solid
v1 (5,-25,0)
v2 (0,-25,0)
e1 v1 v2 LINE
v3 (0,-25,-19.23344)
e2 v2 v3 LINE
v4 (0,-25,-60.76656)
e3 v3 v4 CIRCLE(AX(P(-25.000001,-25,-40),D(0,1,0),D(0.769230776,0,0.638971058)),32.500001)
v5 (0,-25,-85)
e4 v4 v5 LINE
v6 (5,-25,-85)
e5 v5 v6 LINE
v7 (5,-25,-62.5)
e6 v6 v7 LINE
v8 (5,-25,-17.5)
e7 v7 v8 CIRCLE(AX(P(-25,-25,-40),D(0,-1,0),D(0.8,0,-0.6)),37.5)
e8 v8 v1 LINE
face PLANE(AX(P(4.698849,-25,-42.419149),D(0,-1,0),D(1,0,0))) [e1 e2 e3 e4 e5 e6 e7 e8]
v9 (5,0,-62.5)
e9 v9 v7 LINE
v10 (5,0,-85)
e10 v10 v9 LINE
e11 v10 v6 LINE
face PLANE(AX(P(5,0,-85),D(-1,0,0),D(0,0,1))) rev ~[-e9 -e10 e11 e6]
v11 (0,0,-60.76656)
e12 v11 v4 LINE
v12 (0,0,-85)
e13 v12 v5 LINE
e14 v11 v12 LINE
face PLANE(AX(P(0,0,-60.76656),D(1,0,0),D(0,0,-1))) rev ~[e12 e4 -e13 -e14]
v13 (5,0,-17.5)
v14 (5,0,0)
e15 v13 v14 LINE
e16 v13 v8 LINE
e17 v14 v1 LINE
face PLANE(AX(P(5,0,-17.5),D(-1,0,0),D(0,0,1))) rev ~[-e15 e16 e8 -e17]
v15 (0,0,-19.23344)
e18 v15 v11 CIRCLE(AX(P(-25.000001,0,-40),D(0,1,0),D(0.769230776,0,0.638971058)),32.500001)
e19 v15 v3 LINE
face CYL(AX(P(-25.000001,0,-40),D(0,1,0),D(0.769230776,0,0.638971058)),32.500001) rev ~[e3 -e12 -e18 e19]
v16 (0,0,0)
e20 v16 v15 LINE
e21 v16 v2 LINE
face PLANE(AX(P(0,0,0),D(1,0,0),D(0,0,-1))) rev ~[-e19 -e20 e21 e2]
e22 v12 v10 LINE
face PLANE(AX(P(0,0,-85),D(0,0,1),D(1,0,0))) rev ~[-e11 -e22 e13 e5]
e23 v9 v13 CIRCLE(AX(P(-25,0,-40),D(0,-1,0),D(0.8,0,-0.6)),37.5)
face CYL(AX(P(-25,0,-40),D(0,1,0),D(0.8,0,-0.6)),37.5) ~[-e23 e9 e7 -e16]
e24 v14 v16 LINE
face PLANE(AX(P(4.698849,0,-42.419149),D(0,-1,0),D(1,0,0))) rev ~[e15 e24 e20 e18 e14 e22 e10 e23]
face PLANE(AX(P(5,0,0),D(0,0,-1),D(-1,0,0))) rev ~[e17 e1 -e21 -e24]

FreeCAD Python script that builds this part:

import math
import FreeCAD as App
import Part
import Sketcher

V = App.Vector
Q = App.Units.Quantity

doc = App.newDocument("Part")
body = doc.addObject("PartDesign::Body", "Body")

sketch1 = doc.addObject("Sketcher::SketchObject", "Sketch")
body.addObject(sketch1)
sketch1.AttachmentSupport = (doc.XZ_Plane, [""])
sketch1.MapMode = "FlatFace"
sketch1.addGeometry(Part.LineSegment(V(5, 0, 0), V(0, 0, 0)), False)
sketch1.addGeometry(Part.LineSegment(V(0, 0, 0), V(0, -19.23344, 0)), False)
sketch1.addGeometry(Part.ArcOfCircle(Part.Circle(V(-25.000001, -40, 0), V(0, 0, 1), 32.500001), math.radians(-39.715137), math.radians(39.715137)), False)
sketch1.addGeometry(Part.LineSegment(V(0, -60.76656, 0), V(0, -85, 0)), False)
sketch1.addGeometry(Part.LineSegment(V(0, -85, 0), V(5, -85, 0)), False)
sketch1.addGeometry(Part.LineSegment(V(5, -85, 0), V(5, -62.5, 0)), False)
sketch1.addGeometry(Part.ArcOfCircle(Part.Circle(V(-25, -40, 0), V(0, 0, 1), 37.5), math.radians(-36.869898), math.radians(36.869898)), False)
sketch1.addGeometry(Part.LineSegment(V(5, -17.5, 0), V(5, 0, 0)), False)
sketch1.addConstraint(Sketcher.Constraint("Coincident", 0, 2, 1, 1))
sketch1.addConstraint(Sketcher.Constraint("Coincident", 1, 2, 2, 2))
sketch1.addConstraint(Sketcher.Constraint("Coincident", 2, 1, 3, 1))
sketch1.addConstraint(Sketcher.Constraint("Coincident", 3, 2, 4, 1))
sketch1.addConstraint(Sketcher.Constraint("Coincident", 4, 2, 5, 1))
sketch1.addConstraint(Sketcher.Constraint("Coincident", 5, 2, 6, 1))
sketch1.addConstraint(Sketcher.Constraint("Coincident", 6, 2, 7, 1))
sketch1.addConstraint(Sketcher.Constraint("Coincident", 7, 2, 0, 1))
sketch1.addConstraint(Sketcher.Constraint("Horizontal", 0))
sketch1.addConstraint(Sketcher.Constraint("Vertical", 1))
sketch1.addConstraint(Sketcher.Constraint("Vertical", 3))
sketch1.addConstraint(Sketcher.Constraint("Horizontal", 4))
sketch1.addConstraint(Sketcher.Constraint("Vertical", 5))
sketch1.addConstraint(Sketcher.Constraint("Vertical", 7))
sketch1.addConstraint(Sketcher.Constraint("Coincident", 0, 2, -1, 1))
sketch1.addConstraint(Sketcher.Constraint("Coincident", 6, 3, 2, 3))
sketch1.addConstraint(Sketcher.Constraint("PointOnObject", 2, 1, -2))
sketch1.addConstraint(Sketcher.Constraint("Vertical", 5, 2, 6, 2))
sketch1.addConstraint(Sketcher.Constraint("Radius", 2, Q("32.500001 mm")))
sketch1.addConstraint(Sketcher.Constraint("Radius", 6, Q("37.5 mm")))
sketch1.addConstraint(Sketcher.Constraint("DistanceX", 0, 2, 0, 1, Q("5 mm")))
sketch1.addConstraint(Sketcher.Constraint("DistanceY", 5, 1, 5, 2, Q("22.5 mm")))
sketch1.addConstraint(Sketcher.Constraint("DistanceY", 7, 1, 7, 2, Q("17.5 mm")))
sketch1.addConstraint(Sketcher.Constraint("DistanceX", 2, 3, -1, 1, Q("25.000001 mm")))
pad1 = doc.addObject("PartDesign::Pad", "Pad")
body.addObject(pad1)
pad1.Profile = sketch1
pad1.Length = 25

doc.recompute()
